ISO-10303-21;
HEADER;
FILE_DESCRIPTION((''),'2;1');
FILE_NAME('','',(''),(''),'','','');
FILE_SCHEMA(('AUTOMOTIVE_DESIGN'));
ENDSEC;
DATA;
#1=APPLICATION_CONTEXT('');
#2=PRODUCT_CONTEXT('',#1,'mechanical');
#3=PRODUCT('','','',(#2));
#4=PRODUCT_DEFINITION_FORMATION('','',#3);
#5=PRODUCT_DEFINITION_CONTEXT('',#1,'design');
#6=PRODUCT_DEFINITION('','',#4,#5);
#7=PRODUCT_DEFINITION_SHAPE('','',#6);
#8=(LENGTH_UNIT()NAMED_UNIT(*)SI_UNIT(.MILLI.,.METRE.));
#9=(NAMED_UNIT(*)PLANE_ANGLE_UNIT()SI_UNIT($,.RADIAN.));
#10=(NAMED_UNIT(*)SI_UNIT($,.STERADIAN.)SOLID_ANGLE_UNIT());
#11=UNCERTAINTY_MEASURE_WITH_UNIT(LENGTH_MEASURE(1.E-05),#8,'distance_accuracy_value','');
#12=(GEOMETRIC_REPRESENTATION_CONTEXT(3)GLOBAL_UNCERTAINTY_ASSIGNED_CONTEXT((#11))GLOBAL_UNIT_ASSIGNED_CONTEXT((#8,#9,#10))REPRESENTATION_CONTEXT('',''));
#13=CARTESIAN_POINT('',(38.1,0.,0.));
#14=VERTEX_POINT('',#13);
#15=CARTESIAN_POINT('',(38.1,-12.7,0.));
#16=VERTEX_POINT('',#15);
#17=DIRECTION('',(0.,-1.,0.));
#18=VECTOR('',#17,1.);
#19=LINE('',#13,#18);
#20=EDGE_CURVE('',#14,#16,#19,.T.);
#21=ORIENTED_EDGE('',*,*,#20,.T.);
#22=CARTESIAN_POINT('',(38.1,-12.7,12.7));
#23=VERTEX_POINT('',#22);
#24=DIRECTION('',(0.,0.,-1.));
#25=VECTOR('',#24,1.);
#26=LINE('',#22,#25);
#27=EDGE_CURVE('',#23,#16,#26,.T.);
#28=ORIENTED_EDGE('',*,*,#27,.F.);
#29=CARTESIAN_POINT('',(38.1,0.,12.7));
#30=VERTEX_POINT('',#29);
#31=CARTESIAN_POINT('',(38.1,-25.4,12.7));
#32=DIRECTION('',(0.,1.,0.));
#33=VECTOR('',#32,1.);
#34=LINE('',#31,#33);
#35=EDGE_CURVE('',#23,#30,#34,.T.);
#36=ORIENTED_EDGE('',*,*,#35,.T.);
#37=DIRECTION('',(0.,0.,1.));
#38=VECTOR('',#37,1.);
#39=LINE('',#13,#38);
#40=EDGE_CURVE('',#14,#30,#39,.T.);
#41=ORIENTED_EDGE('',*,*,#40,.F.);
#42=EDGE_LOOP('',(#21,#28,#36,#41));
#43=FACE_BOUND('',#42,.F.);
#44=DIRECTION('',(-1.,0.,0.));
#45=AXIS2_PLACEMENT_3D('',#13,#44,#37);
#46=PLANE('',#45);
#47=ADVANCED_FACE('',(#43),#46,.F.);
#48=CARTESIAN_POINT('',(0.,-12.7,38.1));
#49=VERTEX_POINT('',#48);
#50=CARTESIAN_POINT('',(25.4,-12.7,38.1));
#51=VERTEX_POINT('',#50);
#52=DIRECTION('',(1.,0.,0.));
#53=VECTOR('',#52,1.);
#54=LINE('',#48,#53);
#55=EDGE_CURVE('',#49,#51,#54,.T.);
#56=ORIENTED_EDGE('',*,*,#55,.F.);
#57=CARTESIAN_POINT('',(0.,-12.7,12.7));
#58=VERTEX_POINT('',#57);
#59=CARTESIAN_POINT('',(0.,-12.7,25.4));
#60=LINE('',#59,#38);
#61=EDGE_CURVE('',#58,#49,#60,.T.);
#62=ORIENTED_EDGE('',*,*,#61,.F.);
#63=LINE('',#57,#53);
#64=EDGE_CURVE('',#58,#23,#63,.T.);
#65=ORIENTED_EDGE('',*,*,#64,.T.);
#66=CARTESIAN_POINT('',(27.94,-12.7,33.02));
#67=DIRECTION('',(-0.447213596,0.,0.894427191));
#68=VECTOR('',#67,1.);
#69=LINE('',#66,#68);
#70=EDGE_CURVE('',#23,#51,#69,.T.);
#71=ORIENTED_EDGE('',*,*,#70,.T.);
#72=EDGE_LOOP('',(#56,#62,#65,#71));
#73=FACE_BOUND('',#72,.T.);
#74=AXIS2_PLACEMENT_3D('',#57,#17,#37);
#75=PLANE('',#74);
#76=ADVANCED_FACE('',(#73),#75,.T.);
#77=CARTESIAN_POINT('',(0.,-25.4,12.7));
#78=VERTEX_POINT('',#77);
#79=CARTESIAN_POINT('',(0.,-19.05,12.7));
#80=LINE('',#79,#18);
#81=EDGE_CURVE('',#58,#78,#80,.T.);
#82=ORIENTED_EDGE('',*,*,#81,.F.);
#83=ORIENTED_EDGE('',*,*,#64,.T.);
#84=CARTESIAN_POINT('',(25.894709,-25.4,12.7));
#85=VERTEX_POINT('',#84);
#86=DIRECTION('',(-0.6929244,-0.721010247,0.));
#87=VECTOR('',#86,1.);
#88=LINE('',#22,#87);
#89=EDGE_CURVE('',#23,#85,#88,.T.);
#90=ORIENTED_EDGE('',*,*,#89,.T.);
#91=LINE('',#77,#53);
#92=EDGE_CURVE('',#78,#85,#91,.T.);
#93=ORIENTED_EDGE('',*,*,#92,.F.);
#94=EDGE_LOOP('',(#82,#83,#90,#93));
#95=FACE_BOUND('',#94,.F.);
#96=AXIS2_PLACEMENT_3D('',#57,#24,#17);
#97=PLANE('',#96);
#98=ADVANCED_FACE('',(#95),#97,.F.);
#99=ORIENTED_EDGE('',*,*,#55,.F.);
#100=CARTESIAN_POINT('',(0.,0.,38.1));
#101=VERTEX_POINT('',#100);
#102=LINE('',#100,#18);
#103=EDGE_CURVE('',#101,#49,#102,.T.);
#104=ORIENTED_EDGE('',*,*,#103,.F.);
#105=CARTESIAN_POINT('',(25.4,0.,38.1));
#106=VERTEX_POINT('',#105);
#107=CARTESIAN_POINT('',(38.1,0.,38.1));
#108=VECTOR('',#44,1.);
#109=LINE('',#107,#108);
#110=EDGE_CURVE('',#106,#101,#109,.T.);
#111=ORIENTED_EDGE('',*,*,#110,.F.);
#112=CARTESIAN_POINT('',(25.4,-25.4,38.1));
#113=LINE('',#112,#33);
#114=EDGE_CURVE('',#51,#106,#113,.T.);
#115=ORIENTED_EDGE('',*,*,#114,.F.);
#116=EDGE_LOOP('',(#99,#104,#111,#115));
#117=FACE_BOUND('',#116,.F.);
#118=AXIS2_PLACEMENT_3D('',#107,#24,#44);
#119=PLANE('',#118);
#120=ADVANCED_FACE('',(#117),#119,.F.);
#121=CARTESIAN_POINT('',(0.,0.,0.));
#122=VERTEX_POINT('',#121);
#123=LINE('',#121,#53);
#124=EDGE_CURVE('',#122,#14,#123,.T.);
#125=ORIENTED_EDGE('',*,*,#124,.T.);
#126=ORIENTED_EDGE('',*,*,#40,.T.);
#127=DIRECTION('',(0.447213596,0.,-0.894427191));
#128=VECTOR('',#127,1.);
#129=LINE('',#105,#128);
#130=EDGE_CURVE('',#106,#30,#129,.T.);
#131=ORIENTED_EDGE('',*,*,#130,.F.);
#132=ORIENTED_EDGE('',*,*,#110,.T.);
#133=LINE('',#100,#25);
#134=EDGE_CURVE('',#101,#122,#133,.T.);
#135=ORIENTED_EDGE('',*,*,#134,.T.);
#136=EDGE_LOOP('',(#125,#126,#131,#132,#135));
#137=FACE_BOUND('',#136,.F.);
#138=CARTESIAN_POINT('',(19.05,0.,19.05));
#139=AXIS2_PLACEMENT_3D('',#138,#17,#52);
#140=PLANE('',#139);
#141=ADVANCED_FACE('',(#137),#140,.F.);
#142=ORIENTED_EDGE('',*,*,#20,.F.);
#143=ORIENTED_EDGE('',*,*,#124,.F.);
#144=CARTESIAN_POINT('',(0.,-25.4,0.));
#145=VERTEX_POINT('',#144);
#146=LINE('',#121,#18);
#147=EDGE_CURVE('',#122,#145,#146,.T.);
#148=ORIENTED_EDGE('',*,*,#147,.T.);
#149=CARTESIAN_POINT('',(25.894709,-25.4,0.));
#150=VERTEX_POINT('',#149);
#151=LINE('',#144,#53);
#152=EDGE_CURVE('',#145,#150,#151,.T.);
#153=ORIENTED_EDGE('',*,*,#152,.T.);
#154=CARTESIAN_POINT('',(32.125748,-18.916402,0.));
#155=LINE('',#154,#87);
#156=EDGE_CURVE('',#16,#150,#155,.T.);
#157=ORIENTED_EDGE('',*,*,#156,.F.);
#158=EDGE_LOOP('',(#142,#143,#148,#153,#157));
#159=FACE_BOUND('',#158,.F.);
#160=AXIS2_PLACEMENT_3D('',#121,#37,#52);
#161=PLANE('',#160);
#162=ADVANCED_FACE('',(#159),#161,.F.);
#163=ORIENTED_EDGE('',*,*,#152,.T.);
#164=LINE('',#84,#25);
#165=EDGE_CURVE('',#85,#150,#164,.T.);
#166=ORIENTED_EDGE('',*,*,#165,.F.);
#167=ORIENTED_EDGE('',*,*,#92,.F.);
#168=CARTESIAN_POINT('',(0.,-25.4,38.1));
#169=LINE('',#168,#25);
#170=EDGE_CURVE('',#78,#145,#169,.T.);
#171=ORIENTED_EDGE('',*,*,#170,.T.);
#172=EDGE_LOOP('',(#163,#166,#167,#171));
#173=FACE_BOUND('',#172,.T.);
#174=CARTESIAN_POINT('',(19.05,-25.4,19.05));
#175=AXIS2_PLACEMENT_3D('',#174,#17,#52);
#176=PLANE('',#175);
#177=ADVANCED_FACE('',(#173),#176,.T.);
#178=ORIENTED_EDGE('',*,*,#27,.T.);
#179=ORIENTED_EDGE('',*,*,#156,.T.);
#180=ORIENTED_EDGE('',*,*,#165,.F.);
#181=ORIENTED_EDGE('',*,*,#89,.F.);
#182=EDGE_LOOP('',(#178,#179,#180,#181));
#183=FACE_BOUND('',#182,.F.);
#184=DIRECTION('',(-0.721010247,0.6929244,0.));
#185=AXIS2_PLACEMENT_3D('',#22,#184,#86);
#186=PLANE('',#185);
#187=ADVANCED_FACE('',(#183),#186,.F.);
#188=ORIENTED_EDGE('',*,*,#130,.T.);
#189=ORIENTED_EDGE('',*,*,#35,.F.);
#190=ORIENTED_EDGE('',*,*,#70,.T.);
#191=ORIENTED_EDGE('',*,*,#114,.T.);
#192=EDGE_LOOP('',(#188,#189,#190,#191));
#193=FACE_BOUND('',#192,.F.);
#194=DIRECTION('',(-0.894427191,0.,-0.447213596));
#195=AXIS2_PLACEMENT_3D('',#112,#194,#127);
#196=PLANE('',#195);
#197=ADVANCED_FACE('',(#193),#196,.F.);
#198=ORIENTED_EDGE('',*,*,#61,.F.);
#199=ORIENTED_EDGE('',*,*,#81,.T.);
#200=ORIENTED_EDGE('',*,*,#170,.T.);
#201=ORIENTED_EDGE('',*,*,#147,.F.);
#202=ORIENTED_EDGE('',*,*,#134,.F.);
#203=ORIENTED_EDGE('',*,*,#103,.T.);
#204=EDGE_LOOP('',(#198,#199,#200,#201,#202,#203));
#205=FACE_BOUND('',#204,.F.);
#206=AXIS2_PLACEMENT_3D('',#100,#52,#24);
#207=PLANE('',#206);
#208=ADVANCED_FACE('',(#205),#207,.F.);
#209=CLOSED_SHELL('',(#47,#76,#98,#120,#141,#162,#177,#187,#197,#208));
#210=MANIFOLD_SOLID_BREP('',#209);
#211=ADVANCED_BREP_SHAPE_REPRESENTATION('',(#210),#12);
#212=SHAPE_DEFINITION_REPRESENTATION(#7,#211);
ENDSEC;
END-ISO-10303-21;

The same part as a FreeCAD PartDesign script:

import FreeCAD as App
import Part
import Sketcher
Q = App.Units.Quantity

doc = App.newDocument("Part")
params = doc.addObject("Spreadsheet::Sheet", "Params")
for row, (alias, value) in enumerate([
    ("sketch1_width", "1.5 in"),
    ("pad1_length", "1 in"),
    ("sketch2_height", "1 in"),
    ("sketch2_width", "0.5 in"),
    ("pocket1_length", "1 in"),
    ("sketch3_height", "1 in"),
    ("sketch3_width", "0.5 in"),
    ("pocket2_length", "1.5 in"),
    ("sketch4_height", "0.5 in"),
    ("pocket3_length", "1 in"),
], start=1):
    params.set(f"A{row}", alias)
    params.set(f"B{row}", "=" + value)
    params.setAlias(f"B{row}", alias)

body = doc.addObject("PartDesign::Body", "Body")

sketch1 = body.newObject("Sketcher::SketchObject", "Sketch")
sketch1.AttachmentSupport = (doc.getObject("XZ_Plane"), [""])
sketch1.MapMode = "FlatFace"
sketch1.addGeometry(Part.LineSegment(App.Vector(38, 38, 0), App.Vector(0, 38, 0)), False)
sketch1.addGeometry(Part.LineSegment(App.Vector(0, 38, 0), App.Vector(0, 0, 0)), False)
sketch1.addGeometry(Part.LineSegment(App.Vector(0, 0, 0), App.Vector(38, 0, 0)), False)
sketch1.addGeometry(Part.LineSegment(App.Vector(38, 0, 0), App.Vector(38, 38, 0)), False)
sketch1.addConstraint(Sketcher.Constraint("Coincident", 0, 2, 1, 1))
sketch1.addConstraint(Sketcher.Constraint("Coincident", 1, 2, 2, 1))
sketch1.addConstraint(Sketcher.Constraint("Coincident", 2, 2, 3, 1))
sketch1.addConstraint(Sketcher.Constraint("Coincident", 3, 2, 0, 1))
sketch1.addConstraint(Sketcher.Constraint("Horizontal", 0))
sketch1.addConstraint(Sketcher.Constraint("Vertical", 1))
sketch1.addConstraint(Sketcher.Constraint("Horizontal", 2))
sketch1.addConstraint(Sketcher.Constraint("Vertical", 3))
sketch1.addConstraint(Sketcher.Constraint("Coincident", 1, 2, -1, 1))
sketch1.addConstraint(Sketcher.Constraint("Equal", 2, 1))
sketch1.addConstraint(Sketcher.Constraint("DistanceX", 0, 2, 0, 1, Q("1.5 in")))
sketch1.setExpression("Constraints[10]", "Params.sketch1_width")
pad1 = body.newObject("PartDesign::Pad", "Pad")
pad1.Profile = sketch1
pad1.setExpression("Length", "Params.pad1_length")

sketch2 = body.newObject("Sketcher::SketchObject", "Sketch001")
sketch2.AttachmentSupport = (doc.getObject("XZ_Plane"), [""])
sketch2.MapMode = "FlatFace"
sketch2.AttachmentOffset = App.Placement(App.Vector(0, 0, 1 * 25.4), App.Rotation())
sketch2.addGeometry(Part.LineSegment(App.Vector(25, 38, 0), App.Vector(38, 13, 0)), False)
sketch2.addGeometry(Part.LineSegment(App.Vector(38, 13, 0), App.Vector(38, 38, 0)), False)
sketch2.addGeometry(Part.LineSegment(App.Vector(38, 38, 0), App.Vector(25, 38, 0)), False)
sketch2.addConstraint(Sketcher.Constraint("Coincident", 0, 2, 1, 1))
sketch2.addConstraint(Sketcher.Constraint("Coincident", 1, 2, 2, 1))
sketch2.addConstraint(Sketcher.Constraint("Coincident", 2, 2, 0, 1))
sketch2.addConstraint(Sketcher.Constraint("Vertical", 1))
sketch2.addConstraint(Sketcher.Constraint("Horizontal", 2))
sketch2.addConstraint(Sketcher.Constraint("DistanceY", 1, 1, 1, 2, Q("1 in")))
sketch2.addConstraint(Sketcher.Constraint("DistanceX", 2, 2, 2, 1, Q("0.5 in")))
sketch2.addConstraint(Sketcher.Constraint("DistanceX", -1, 1, 2, 2, Q("1 in")))
sketch2.addConstraint(Sketcher.Constraint("DistanceY", -1, 1, 0, 2, Q("0.5 in")))
sketch2.setExpression("Constraints[5]", "Params.sketch2_height")
sketch2.setExpression("Constraints[6]", "Params.sketch2_width")
pocket1 = body.newObject("PartDesign::Pocket", "Pocket")
pocket1.Profile = sketch2
pocket1.setExpression("Length", "Params.pocket1_length")

sketch3 = body.newObject("Sketcher::SketchObject", "Sketch002")
sketch3.AttachmentSupport = (doc.getObject("YZ_Plane"), [""])
sketch3.MapMode = "FlatFace"
sketch3.addGeometry(Part.LineSegment(App.Vector(-13, 38, 0), App.Vector(-13, 13, 0)), False)
sketch3.addGeometry(Part.LineSegment(App.Vector(-13, 13, 0), App.Vector(-25, 13, 0)), False)
sketch3.addGeometry(Part.LineSegment(App.Vector(-25, 13, 0), App.Vector(-25, 38, 0)), False)
sketch3.addGeometry(Part.LineSegment(App.Vector(-25, 38, 0), App.Vector(-13, 38, 0)), False)
sketch3.addConstraint(Sketcher.Constraint("Coincident", 0, 2, 1, 1))
sketch3.addConstraint(Sketcher.Constraint("Coincident", 1, 2, 2, 1))
sketch3.addConstraint(Sketcher.Constraint("Coincident", 2, 2, 3, 1))
sketch3.addConstraint(Sketcher.Constraint("Coincident", 3, 2, 0, 1))
sketch3.addConstraint(Sketcher.Constraint("Vertical", 0))
sketch3.addConstraint(Sketcher.Constraint("Horizontal", 1))
sketch3.addConstraint(Sketcher.Constraint("Vertical", 2))
sketch3.addConstraint(Sketcher.Constraint("Horizontal", 3))
sketch3.addConstraint(Sketcher.Constraint("DistanceY", 0, 2, 0, 1, Q("1 in")))
sketch3.addConstraint(Sketcher.Constraint("DistanceX", 1, 2, 1, 1, Q("0.5 in")))
sketch3.addConstraint(Sketcher.Constraint("DistanceX", 1, 2, -1, 1, Q("1 in")))
sketch3.addConstraint(Sketcher.Constraint("DistanceY", -1, 1, 0, 2, Q("0.5 in")))
sketch3.setExpression("Constraints[8]", "Params.sketch3_height")
sketch3.setExpression("Constraints[9]", "Params.sketch3_width")
pocket2 = body.newObject("PartDesign::Pocket", "Pocket001")
pocket2.Profile = sketch3
pocket2.setExpression("Length", "Params.pocket2_length")
pocket2.Reversed = True

sketch4 = body.newObject("Sketcher::SketchObject", "Sketch003")
sketch4.AttachmentSupport = (doc.getObject("XY_Plane"), [""])
sketch4.MapMode = "FlatFace"
sketch4.AttachmentOffset = App.Placement(App.Vector(0, 0, 0.5 * 25.4), App.Rotation())
sketch4.addGeometry(Part.LineSegment(App.Vector(38, -25, 0), App.Vector(38, -13, 0)), False)
sketch4.addGeometry(Part.LineSegment(App.Vector(38, -13, 0), App.Vector(26, -25, 0)), False)
sketch4.addGeometry(Part.LineSegment(App.Vector(26, -25, 0), App.Vector(38, -25, 0)), False)
sketch4.addConstraint(Sketcher.Constraint("Coincident", 0, 2, 1, 1))
sketch4.addConstraint(Sketcher.Constraint("Coincident", 1, 2, 2, 1))
sketch4.addConstraint(Sketcher.Constraint("Coincident", 2, 2, 0, 1))
sketch4.addConstraint(Sketcher.Constraint("Vertical", 0))
sketch4.addConstraint(Sketcher.Constraint("Horizontal", 2))
sketch4.addConstraint(Sketcher.Constraint("DistanceY", 0, 1, 0, 2, Q("0.5 in")))
sketch4.addConstraint(Sketcher.Constraint("DistanceY", 1, 2, -1, 1, Q("1 in")))
sketch4.addConstraint(Sketcher.Constraint("DistanceX", -1, 1, 0, 2, Q("1.5 in")))
sketch4.addConstraint(Sketcher.Constraint("DistanceX", 2, 1, 2, 2, Q("12.205291 mm")))
sketch4.setExpression("Constraints[5]", "Params.sketch4_height")
pocket3 = body.newObject("PartDesign::Pocket", "Pocket002")
pocket3.Profile = sketch4
pocket3.setExpression("Length", "Params.pocket3_length")

doc.recompute()
